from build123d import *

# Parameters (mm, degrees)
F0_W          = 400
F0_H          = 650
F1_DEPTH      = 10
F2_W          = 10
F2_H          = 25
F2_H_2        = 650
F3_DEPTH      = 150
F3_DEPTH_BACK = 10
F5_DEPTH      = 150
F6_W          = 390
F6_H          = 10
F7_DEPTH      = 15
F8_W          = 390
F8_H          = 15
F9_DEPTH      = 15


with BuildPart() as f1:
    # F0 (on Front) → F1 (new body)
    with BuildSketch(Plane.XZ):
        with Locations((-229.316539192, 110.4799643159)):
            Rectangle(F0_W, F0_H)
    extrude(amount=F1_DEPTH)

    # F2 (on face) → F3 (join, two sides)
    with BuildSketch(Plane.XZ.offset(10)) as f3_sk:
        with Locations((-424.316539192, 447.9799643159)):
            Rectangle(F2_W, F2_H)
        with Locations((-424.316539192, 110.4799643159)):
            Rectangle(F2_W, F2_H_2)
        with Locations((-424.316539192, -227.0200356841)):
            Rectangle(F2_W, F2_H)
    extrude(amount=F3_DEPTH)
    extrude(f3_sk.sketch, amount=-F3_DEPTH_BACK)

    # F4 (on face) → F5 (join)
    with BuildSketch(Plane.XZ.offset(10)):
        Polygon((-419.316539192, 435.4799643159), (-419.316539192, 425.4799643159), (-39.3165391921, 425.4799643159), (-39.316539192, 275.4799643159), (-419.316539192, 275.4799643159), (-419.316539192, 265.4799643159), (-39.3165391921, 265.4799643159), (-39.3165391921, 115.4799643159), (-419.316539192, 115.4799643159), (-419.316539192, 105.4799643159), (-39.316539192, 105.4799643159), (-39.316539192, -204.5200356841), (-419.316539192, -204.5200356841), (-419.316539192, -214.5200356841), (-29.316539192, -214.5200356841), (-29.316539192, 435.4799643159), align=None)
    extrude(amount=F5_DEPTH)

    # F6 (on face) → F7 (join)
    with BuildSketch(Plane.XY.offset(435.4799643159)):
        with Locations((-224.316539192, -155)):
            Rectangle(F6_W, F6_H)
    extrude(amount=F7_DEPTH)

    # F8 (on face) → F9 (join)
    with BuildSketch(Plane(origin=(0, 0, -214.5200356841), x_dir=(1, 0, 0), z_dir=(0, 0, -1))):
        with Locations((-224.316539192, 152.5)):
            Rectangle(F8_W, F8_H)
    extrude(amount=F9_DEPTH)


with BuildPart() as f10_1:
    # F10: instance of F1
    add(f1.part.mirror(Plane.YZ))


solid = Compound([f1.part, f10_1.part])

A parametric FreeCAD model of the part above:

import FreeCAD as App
import Part
import Sketcher
from FreeCAD import Vector

doc = App.newDocument("Part")
params = doc.addObject("Spreadsheet::Sheet", "Params")
for row, (alias, value) in enumerate([
    ("sketch1_width", "400 mm"),
    ("sketch1_height", "650 mm"),
    ("pad1_length", "10 mm"),
    ("sketch2_width", "10 mm"),
    ("sketch2_height", "700 mm"),
    ("pad2_length", "150 mm"),
    ("pad2_length2", "10 mm"),
    ("sketch3_width", "380 mm"),
    ("sketch3_width2", "390 mm"),
    ("sketch3_height", "10 mm"),
    ("sketch3_height2", "150 mm"),
    ("sketch3_height3", "310 mm"),
    ("pad3_length", "150 mm"),
    ("sketch4_width", "390 mm"),
    ("sketch4_height", "10 mm"),
    ("pad4_length", "15 mm"),
    ("sketch5_width", "390 mm"),
    ("sketch5_height", "15 mm"),
    ("pad5_length", "15 mm"),
], start=1):
    params.set(f"A{row}", alias)
    params.set(f"B{row}", "=" + value)
    params.setAlias(f"B{row}", alias)

body = doc.addObject("PartDesign::Body", "Body")

# Sketch on XZ plane
sketch1 = doc.addObject("Sketcher::SketchObject", "Sketch")
body.addObject(sketch1)
sketch1.AttachmentSupport = (doc.XZ_Plane, [""])
sketch1.MapMode = "FlatFace"
sketch1.addGeometry([
    Part.LineSegment(Vector(-429.316539, 435.479964, 0), Vector(-429.316539, -214.520036, 0)),
    Part.LineSegment(Vector(-429.316539, -214.520036, 0), Vector(-29.316539, -214.520036, 0)),
    Part.LineSegment(Vector(-29.316539, -214.520036, 0), Vector(-29.316539, 435.479964, 0)),
    Part.LineSegment(Vector(-29.316539, 435.479964, 0), Vector(-429.316539, 435.479964, 0)),
], False)
sketch1.addConstraint([
    Sketcher.Constraint("Coincident", 0, 2, 1, 1),
    Sketcher.Constraint("Coincident", 1, 2, 2, 1),
    Sketcher.Constraint("Coincident", 2, 2, 3, 1),
    Sketcher.Constraint("Coincident", 3, 2, 0, 1),
    Sketcher.Constraint("Vertical", 0),
    Sketcher.Constraint("Horizontal", 1),
    Sketcher.Constraint("Vertical", 2),
    Sketcher.Constraint("Horizontal", 3),
    Sketcher.Constraint("DistanceX", 1, 1, 1, 2, 400.0),
    Sketcher.Constraint("DistanceY", 0, 2, 0, 1, 650.0),
    Sketcher.Constraint("DistanceX", 0, 2, -1, 1, 429.316539),
    Sketcher.Constraint("DistanceY", 0, 2, -1, 1, 214.520036),
])
sketch1.setExpression("Constraints[8]", "Params.sketch1_width")
sketch1.setExpression("Constraints[9]", "Params.sketch1_height")
pad1 = doc.addObject("PartDesign::Pad", "Pad")
body.addObject(pad1)
pad1.Profile = sketch1
pad1.setExpression("Length", "Params.pad1_length")

# Sketch on XZ plane
sketch2 = doc.addObject("Sketcher::SketchObject", "Sketch001")
body.addObject(sketch2)
sketch2.AttachmentSupport = (doc.XZ_Plane, [""])
sketch2.MapMode = "FlatFace"
sketch2.AttachmentOffset = App.Placement(Vector(0, 0, 10), App.Rotation())
sketch2.addGeometry([
    Part.LineSegment(Vector(-429.316539, 460.479964, 0), Vector(-429.316539, -239.520036, 0)),
    Part.LineSegment(Vector(-429.316539, -239.520036, 0), Vector(-419.316539, -239.520036, 0)),
    Part.LineSegment(Vector(-419.316539, -239.520036, 0), Vector(-419.316539, 460.479964, 0)),
    Part.LineSegment(Vector(-419.316539, 460.479964, 0), Vector(-429.316539, 460.479964, 0)),
], False)
sketch2.addConstraint([
    Sketcher.Constraint("Coincident", 0, 2, 1, 1),
    Sketcher.Constraint("Coincident", 1, 2, 2, 1),
    Sketcher.Constraint("Coincident", 2, 2, 3, 1),
    Sketcher.Constraint("Coincident", 3, 2, 0, 1),
    Sketcher.Constraint("Vertical", 0),
    Sketcher.Constraint("Horizontal", 1),
    Sketcher.Constraint("Vertical", 2),
    Sketcher.Constraint("Horizontal", 3),
    Sketcher.Constraint("DistanceX", 1, 1, 1, 2, 10.0),
    Sketcher.Constraint("DistanceY", 0, 2, 0, 1, 700.0),
    Sketcher.Constraint("DistanceX", 0, 2, -1, 1, 429.316539),
    Sketcher.Constraint("DistanceY", 0, 2, -1, 1, 239.520036),
])
sketch2.setExpression("Constraints[8]", "Params.sketch2_width")
sketch2.setExpression("Constraints[9]", "Params.sketch2_height")
pad2 = doc.addObject("PartDesign::Pad", "Pad001")
body.addObject(pad2)
pad2.Profile = sketch2
pad2.Type = "TwoLengths"
pad2.setExpression("Length", "Params.pad2_length")
pad2.setExpression("Length2", "Params.pad2_length2")

# Sketch on XZ plane
sketch3 = doc.addObject("Sketcher::SketchObject", "Sketch002")
body.addObject(sketch3)
sketch3.AttachmentSupport = (doc.XZ_Plane, [""])
sketch3.MapMode = "FlatFace"
sketch3.AttachmentOffset = App.Placement(Vector(0, 0, 10), App.Rotation())
sketch3.addGeometry([
    Part.LineSegment(Vector(-419.316539, 435.479964, 0), Vector(-419.316539, 425.479964, 0)),  # 0
    Part.LineSegment(Vector(-419.316539, 425.479964, 0), Vector(-39.316539, 425.479964, 0)),  # 1
    Part.LineSegment(Vector(-39.316539, 425.479964, 0), Vector(-39.316539, 275.479964, 0)),  # 2
    Part.LineSegment(Vector(-39.316539, 275.479964, 0), Vector(-419.316539, 275.479964, 0)),  # 3
    Part.LineSegment(Vector(-419.316539, 275.479964, 0), Vector(-419.316539, 265.479964, 0)),  # 4
    Part.LineSegment(Vector(-419.316539, 265.479964, 0), Vector(-39.316539, 265.479964, 0)),  # 5
    Part.LineSegment(Vector(-39.316539, 265.479964, 0), Vector(-39.316539, 115.479964, 0)),  # 6
    Part.LineSegment(Vector(-39.316539, 115.479964, 0), Vector(-419.316539, 115.479964, 0)),  # 7
    Part.LineSegment(Vector(-419.316539, 115.479964, 0), Vector(-419.316539, 105.479964, 0)),  # 8
    Part.LineSegment(Vector(-419.316539, 105.479964, 0), Vector(-39.316539, 105.479964, 0)),  # 9
    Part.LineSegment(Vector(-39.316539, 105.479964, 0), Vector(-39.316539, -204.520036, 0)),  # 10
    Part.LineSegment(Vector(-39.316539, -204.520036, 0), Vector(-419.316539, -204.520036, 0)),  # 11
    Part.LineSegment(Vector(-419.316539, -204.520036, 0), Vector(-419.316539, -214.520036, 0)),  # 12
    Part.LineSegment(Vector(-419.316539, -214.520036, 0), Vector(-29.316539, -214.520036, 0)),  # 13
    Part.LineSegment(Vector(-29.316539, -214.520036, 0), Vector(-29.316539, 435.479964, 0)),  # 14
    Part.LineSegment(Vector(-29.316539, 435.479964, 0), Vector(-419.316539, 435.479964, 0)),  # 15
], False)
sketch3.addConstraint([
    Sketcher.Constraint("Coincident", 0, 2, 1, 1),
    Sketcher.Constraint("Coincident", 1, 2, 2, 1),
    Sketcher.Constraint("Coincident", 2, 2, 3, 1),
    Sketcher.Constraint("Coincident", 3, 2, 4, 1),
    Sketcher.Constraint("Coincident", 4, 2, 5, 1),
    Sketcher.Constraint("Coincident", 5, 2, 6, 1),
    Sketcher.Constraint("Coincident", 6, 2, 7, 1),
    Sketcher.Constraint("Coincident", 7, 2, 8, 1),
    Sketcher.Constraint("Coincident", 8, 2, 9, 1),
    Sketcher.Constraint("Coincident", 9, 2, 10, 1),
    Sketcher.Constraint("Coincident", 10, 2, 11, 1),
    Sketcher.Constraint("Coincident", 11, 2, 12, 1),
    Sketcher.Constraint("Coincident", 12, 2, 13, 1),
    Sketcher.Constraint("Coincident", 13, 2, 14, 1),
    Sketcher.Constraint("Coincident", 14, 2, 15, 1),
    Sketcher.Constraint("Coincident", 15, 2, 0, 1),
    Sketcher.Constraint("Vertical", 0),
    Sketcher.Constraint("Horizontal", 1),
    Sketcher.Constraint("Vertical", 2),
    Sketcher.Constraint("Horizontal", 3),
    Sketcher.Constraint("Vertical", 4),
    Sketcher.Constraint("Horizontal", 5),
    Sketcher.Constraint("Vertical", 6),
    Sketcher.Constraint("Horizontal", 7),
    Sketcher.Constraint("Vertical", 8),
    Sketcher.Constraint("Horizontal", 9),
    Sketcher.Constraint("Vertical", 10),
    Sketcher.Constraint("Horizontal", 11),
    Sketcher.Constraint("Vertical", 12),
    Sketcher.Constraint("Horizontal", 13),
    Sketcher.Constraint("Vertical", 14),
    Sketcher.Constraint("Horizontal", 15),
    Sketcher.Constraint("Vertical", 0, 2, 3, 2),
    Sketcher.Constraint("Vertical", 2, 2, 5, 2),
    Sketcher.Constraint("Vertical", 4, 2, 7, 2),
    Sketcher.Constraint("Vertical", 6, 2, 9, 2),
    Sketcher.Constraint("Vertical", 8, 2, 11, 2),
    Sketcher.Constraint("Equal", 0, 4),
    Sketcher.Constraint("Equal", 2, 6),
    Sketcher.Constraint("Equal", 4, 8),
    Sketcher.Constraint("Equal", 8, 12),
    Sketcher.Constraint("DistanceX", 1, 1, 1, 2, 380.0),
    Sketcher.Constraint("DistanceX", 13, 1, 13, 2, 390.0),
    Sketcher.Constraint("DistanceY", 0, 2, 0, 1, 10.0),
    Sketcher.Constraint("DistanceY", 2, 2, 2, 1, 150.0),
    Sketcher.Constraint("DistanceY", 10, 2, 10, 1, 310.0),
    Sketcher.Constraint("DistanceX", 0, 2, -1, 1, 419.316539),
    Sketcher.Constraint("DistanceY", -1, 1, 0, 2, 425.479964),
])
sketch3.setExpression("Constraints[41]", "Params.sketch3_width")
sketch3.setExpression("Constraints[42]", "Params.sketch3_width2")
sketch3.setExpression("Constraints[43]", "Params.sketch3_height")
sketch3.setExpression("Constraints[44]", "Params.sketch3_height2")
sketch3.setExpression("Constraints[45]", "Params.sketch3_height3")
pad3 = doc.addObject("PartDesign::Pad", "Pad002")
body.addObject(pad3)
pad3.Profile = sketch3
pad3.setExpression("Length", "Params.pad3_length")

# Sketch on XY plane
sketch4 = doc.addObject("Sketcher::SketchObject", "Sketch003")
body.addObject(sketch4)
sketch4.AttachmentSupport = (doc.XY_Plane, [""])
sketch4.MapMode = "FlatFace"
sketch4.AttachmentOffset = App.Placement(Vector(0, 0, 435.479964), App.Rotation())
sketch4.addGeometry([
    Part.LineSegment(Vector(-419.316539, -150, 0), Vector(-419.316539, -160, 0)),
    Part.LineSegment(Vector(-419.316539, -160, 0), Vector(-29.316539, -160, 0)),
    Part.LineSegment(Vector(-29.316539, -160, 0), Vector(-29.316539, -150, 0)),
    Part.LineSegment(Vector(-29.316539, -150, 0), Vector(-419.316539, -150, 0)),
], False)
sketch4.addConstraint([
    Sketcher.Constraint("Coincident", 0, 2, 1, 1),
    Sketcher.Constraint("Coincident", 1, 2, 2, 1),
    Sketcher.Constraint("Coincident", 2, 2, 3, 1),
    Sketcher.Constraint("Coincident", 3, 2, 0, 1),
    Sketcher.Constraint("Vertical", 0),
    Sketcher.Constraint("Horizontal", 1),
    Sketcher.Constraint("Vertical", 2),
    Sketcher.Constraint("Horizontal", 3),
    Sketcher.Constraint("DistanceX", 1, 1, 1, 2, 390.0),
    Sketcher.Constraint("DistanceY", 0, 2, 0, 1, 10.0),
    Sketcher.Constraint("DistanceY", 0, 2, -1, 1, 160.0),
    Sketcher.Constraint("DistanceX", 0, 2, -1, 1, 419.316539),
])
sketch4.setExpression("Constraints[8]", "Params.sketch4_width")
sketch4.setExpression("Constraints[9]", "Params.sketch4_height")
pad4 = doc.addObject("PartDesign::Pad", "Pad003")
body.addObject(pad4)
pad4.Profile = sketch4
pad4.setExpression("Length", "Params.pad4_length")

# Sketch on XY plane
sketch5 = doc.addObject("Sketcher::SketchObject", "Sketch004")
body.addObject(sketch5)
sketch5.AttachmentSupport = (doc.XY_Plane, [""])
sketch5.MapMode = "FlatFace"
sketch5.AttachmentOffset = App.Placement(Vector(0, 0, -214.520036), App.Rotation())
sketch5.addGeometry([
    Part.LineSegment(Vector(-419.316539, -160, 0), Vector(-419.316539, -145, 0)),
    Part.LineSegment(Vector(-419.316539, -145, 0), Vector(-29.316539, -145, 0)),
    Part.LineSegment(Vector(-29.316539, -145, 0), Vector(-29.316539, -160, 0)),
    Part.LineSegment(Vector(-29.316539, -160, 0), Vector(-419.316539, -160, 0)),
], False)
sketch5.addConstraint([
    Sketcher.Constraint("Coincident", 0, 2, 1, 1),
    Sketcher.Constraint("Coincident", 1, 2, 2, 1),
    Sketcher.Constraint("Coincident", 2, 2, 3, 1),
    Sketcher.Constraint("Coincident", 3, 2, 0, 1),
    Sketcher.Constraint("Vertical", 0),
    Sketcher.Constraint("Horizontal", 1),
    Sketcher.Constraint("Vertical", 2),
    Sketcher.Constraint("Horizontal", 3),
    Sketcher.Constraint("DistanceX", 1, 1, 1, 2, 390.0),
    Sketcher.Constraint("DistanceY", 0, 1, 0, 2, 15.0),
    Sketcher.Constraint("DistanceY", 0, 2, -1, 1, 145.0),
    Sketcher.Constraint("DistanceX", 0, 2, -1, 1, 419.316539),
])
sketch5.setExpression("Constraints[8]", "Params.sketch5_width")
sketch5.setExpression("Constraints[9]", "Params.sketch5_height")
pad5 = doc.addObject("PartDesign::Pad", "Pad004")
body.addObject(pad5)
pad5.Profile = sketch5
pad5.setExpression("Length", "Params.pad5_length")
pad5.Reversed = True
body2 = doc.addObject("PartDesign::Body", "Body001")
doc.recompute()

mirroring = doc.addObject("Part::Mirroring", "Mirroring")
mirroring.Source = body
mirroring.Base = Vector(0, 0, 0)
mirroring.Normal = Vector(1, 0, 0)
body2.BaseFeature = mirroring
doc.recompute()
mirroring.Visibility = False

doc.recompute()
